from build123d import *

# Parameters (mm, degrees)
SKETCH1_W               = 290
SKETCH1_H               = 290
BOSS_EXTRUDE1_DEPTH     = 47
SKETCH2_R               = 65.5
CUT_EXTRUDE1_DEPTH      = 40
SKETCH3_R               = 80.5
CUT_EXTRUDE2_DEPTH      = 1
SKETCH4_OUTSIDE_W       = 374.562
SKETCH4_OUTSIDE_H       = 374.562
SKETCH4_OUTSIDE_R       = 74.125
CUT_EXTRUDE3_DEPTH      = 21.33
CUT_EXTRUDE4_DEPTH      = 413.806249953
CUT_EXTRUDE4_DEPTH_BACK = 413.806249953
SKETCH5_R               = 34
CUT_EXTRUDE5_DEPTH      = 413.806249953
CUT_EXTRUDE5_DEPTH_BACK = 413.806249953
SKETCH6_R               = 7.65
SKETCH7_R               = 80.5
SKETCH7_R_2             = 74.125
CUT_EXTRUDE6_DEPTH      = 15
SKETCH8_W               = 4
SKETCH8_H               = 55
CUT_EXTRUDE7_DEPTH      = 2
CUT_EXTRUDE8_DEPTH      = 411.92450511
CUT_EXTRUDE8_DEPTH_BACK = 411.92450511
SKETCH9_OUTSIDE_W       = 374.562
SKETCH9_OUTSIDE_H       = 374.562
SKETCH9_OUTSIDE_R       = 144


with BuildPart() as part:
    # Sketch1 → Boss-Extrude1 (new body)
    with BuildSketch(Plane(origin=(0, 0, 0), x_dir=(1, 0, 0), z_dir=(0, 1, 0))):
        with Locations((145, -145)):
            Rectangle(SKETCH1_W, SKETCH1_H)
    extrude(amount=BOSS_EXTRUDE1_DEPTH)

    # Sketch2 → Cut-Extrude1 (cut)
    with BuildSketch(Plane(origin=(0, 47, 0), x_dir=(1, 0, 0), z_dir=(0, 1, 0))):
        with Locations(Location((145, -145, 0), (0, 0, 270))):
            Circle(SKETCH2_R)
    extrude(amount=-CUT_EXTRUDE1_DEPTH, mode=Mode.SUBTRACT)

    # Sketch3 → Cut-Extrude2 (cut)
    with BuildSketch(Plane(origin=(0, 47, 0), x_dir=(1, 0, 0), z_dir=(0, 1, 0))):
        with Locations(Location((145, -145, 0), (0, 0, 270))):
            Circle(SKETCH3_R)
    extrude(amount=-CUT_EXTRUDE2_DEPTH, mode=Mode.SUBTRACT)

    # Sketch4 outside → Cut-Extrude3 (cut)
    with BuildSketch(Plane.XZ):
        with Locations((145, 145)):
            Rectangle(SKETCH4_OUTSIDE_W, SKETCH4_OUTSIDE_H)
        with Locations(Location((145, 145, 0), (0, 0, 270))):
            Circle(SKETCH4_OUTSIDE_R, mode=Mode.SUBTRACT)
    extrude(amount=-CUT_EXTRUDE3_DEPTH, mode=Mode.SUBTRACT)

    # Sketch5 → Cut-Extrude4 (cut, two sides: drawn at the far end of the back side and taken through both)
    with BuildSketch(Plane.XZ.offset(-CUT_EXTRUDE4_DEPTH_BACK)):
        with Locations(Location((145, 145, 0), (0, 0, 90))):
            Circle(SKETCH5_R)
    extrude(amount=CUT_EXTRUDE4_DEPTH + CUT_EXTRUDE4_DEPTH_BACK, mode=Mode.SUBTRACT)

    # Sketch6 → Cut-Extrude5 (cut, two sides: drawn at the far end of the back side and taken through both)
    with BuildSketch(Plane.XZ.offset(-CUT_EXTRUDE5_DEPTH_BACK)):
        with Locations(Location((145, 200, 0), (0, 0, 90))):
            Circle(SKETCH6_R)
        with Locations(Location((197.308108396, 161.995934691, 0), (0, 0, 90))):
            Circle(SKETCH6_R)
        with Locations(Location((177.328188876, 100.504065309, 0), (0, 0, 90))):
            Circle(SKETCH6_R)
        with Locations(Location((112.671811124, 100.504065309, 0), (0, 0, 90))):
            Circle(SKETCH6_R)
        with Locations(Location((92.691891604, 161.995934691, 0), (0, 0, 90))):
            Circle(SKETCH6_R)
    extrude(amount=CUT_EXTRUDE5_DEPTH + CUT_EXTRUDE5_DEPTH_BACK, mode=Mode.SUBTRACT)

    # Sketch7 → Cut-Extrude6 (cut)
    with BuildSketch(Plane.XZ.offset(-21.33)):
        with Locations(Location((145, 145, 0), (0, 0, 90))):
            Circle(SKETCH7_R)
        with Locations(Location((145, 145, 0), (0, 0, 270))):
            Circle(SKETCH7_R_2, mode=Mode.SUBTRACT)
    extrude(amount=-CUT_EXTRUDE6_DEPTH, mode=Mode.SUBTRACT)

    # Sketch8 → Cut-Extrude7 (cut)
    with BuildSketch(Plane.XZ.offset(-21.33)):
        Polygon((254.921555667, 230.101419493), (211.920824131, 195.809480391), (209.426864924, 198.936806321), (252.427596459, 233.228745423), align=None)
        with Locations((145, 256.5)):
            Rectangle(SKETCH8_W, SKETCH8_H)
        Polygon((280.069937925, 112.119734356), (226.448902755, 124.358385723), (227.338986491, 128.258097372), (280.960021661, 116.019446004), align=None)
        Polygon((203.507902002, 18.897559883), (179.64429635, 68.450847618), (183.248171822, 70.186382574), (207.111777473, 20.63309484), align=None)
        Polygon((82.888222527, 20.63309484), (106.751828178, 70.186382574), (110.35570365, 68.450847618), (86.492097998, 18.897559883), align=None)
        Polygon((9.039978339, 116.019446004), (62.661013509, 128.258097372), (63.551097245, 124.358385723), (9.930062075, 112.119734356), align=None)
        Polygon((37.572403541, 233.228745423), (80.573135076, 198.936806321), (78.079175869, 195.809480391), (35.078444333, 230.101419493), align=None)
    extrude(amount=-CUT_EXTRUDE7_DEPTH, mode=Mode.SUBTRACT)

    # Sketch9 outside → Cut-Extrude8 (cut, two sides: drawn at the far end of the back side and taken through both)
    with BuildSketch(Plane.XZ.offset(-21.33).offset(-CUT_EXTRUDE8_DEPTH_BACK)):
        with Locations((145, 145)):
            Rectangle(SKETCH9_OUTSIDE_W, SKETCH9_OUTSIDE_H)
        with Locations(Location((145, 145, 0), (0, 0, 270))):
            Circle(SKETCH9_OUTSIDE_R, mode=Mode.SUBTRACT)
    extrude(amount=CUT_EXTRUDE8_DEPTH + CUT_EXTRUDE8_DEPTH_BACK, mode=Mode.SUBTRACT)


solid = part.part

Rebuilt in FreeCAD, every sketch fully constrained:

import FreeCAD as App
import Part
import Sketcher
from FreeCAD import Vector


def add_polygon(sketch, points):
    """Adds a closed chain of lines whose ends are joined by coincident constraints."""
    first, n = sketch.GeometryCount, len(points)
    for a, b in zip(points, points[1:] + points[:1]):
        sketch.addGeometry(Part.LineSegment(App.Vector(*a, 0), App.Vector(*b, 0)), False)
    for i in range(n):
        sketch.addConstraint(Sketcher.Constraint("Coincident", first + i, 2, first + (i + 1) % n, 1))

doc = App.newDocument("Part")
body = doc.addObject("PartDesign::Body", "Body")

# Sketch on XZ plane
sketch1 = body.newObject("Sketcher::SketchObject", "Sketch")
sketch1.AttachmentSupport = (doc.getObject("XZ_Plane"), [""])
sketch1.MapMode = "FlatFace"
add_polygon(sketch1, [(0, 0), (0, 290), (290, 290), (290, 0)])  # lines 0-3
sketch1.addConstraint(Sketcher.Constraint("Vertical", 0))
sketch1.addConstraint(Sketcher.Constraint("Horizontal", 1))
sketch1.addConstraint(Sketcher.Constraint("Vertical", 2))
sketch1.addConstraint(Sketcher.Constraint("Horizontal", 3))
sketch1.addConstraint(Sketcher.Constraint("Coincident", 3, 2, -1, 1))
sketch1.addConstraint(Sketcher.Constraint("Equal", 3, 0))
sketch1.addConstraint(Sketcher.Constraint("DistanceX", 1, 1, 1, 2, 290.0))
pad1 = body.newObject("PartDesign::Pad", "Pad")
pad1.Profile = sketch1
pad1.Length = 47
pad1.Reversed = True

# Sketch on XZ plane
sketch2 = body.newObject("Sketcher::SketchObject", "Sketch001")
sketch2.AttachmentSupport = (doc.getObject("XZ_Plane"), [""])
sketch2.MapMode = "FlatFace"
sketch2.AttachmentOffset = App.Placement(Vector(0, 0, -47), App.Rotation())
sketch2.addGeometry(Part.Circle(Vector(145, 145, 0), Vector(0, 0, 1), 65.5), False)
sketch2.addConstraint(Sketcher.Constraint("Diameter", 0, 131.0))
sketch2.addConstraint(Sketcher.Constraint("DistanceX", -1, 1, 0, 3, 145.0))
sketch2.addConstraint(Sketcher.Constraint("DistanceY", -1, 1, 0, 3, 145.0))
pocket1 = body.newObject("PartDesign::Pocket", "Pocket")
pocket1.Profile = sketch2
pocket1.Length = 40
pocket1.Reversed = True

# Sketch on XZ plane
sketch3 = body.newObject("Sketcher::SketchObject", "Sketch002")
sketch3.AttachmentSupport = (doc.getObject("XZ_Plane"), [""])
sketch3.MapMode = "FlatFace"
sketch3.AttachmentOffset = App.Placement(Vector(0, 0, -47), App.Rotation())
sketch3.addGeometry(Part.Circle(Vector(145, 145, 0), Vector(0, 0, 1), 80.5), False)
sketch3.addConstraint(Sketcher.Constraint("Diameter", 0, 161.0))
sketch3.addConstraint(Sketcher.Constraint("DistanceX", -1, 1, 0, 3, 145.0))
sketch3.addConstraint(Sketcher.Constraint("DistanceY", -1, 1, 0, 3, 145.0))
pocket2 = body.newObject("PartDesign::Pocket", "Pocket001")
pocket2.Profile = sketch3
pocket2.Length = 1
pocket2.Reversed = True

# Sketch on XZ plane
sketch4 = body.newObject("Sketcher::SketchObject", "Sketch003")
sketch4.AttachmentSupport = (doc.getObject("XZ_Plane"), [""])
sketch4.MapMode = "FlatFace"
add_polygon(sketch4, [(-42.281, 332.281), (-42.281, -42.281), (332.281, -42.281), (332.281, 332.281)])  # lines 0-3
sketch4.addGeometry(Part.Circle(Vector(145, 145, 0), Vector(0, 0, 1), 74.125), False)  # 4
sketch4.addConstraint(Sketcher.Constraint("Vertical", 0))
sketch4.addConstraint(Sketcher.Constraint("Horizontal", 1))
sketch4.addConstraint(Sketcher.Constraint("Vertical", 2))
sketch4.addConstraint(Sketcher.Constraint("Horizontal", 3))
sketch4.addConstraint(Sketcher.Constraint("Equal", 3, 0))
sketch4.addConstraint(Sketcher.Constraint("Diameter", 4, 148.25))
sketch4.addConstraint(Sketcher.Constraint("DistanceX", -1, 1, 4, 3, 145.0))
sketch4.addConstraint(Sketcher.Constraint("DistanceY", -1, 1, 4, 3, 145.0))
sketch4.addConstraint(Sketcher.Constraint("DistanceX", 1, 1, 1, 2, 374.562))
sketch4.addConstraint(Sketcher.Constraint("DistanceX", 0, 2, -1, 1, 42.281))
sketch4.addConstraint(Sketcher.Constraint("DistanceY", 0, 2, -1, 1, 42.281))
pocket3 = body.newObject("PartDesign::Pocket", "Pocket002")
pocket3.Profile = sketch4
pocket3.Length = 21.33

# Sketch on XZ plane
sketch5 = body.newObject("Sketcher::SketchObject", "Sketch004")
sketch5.AttachmentSupport = (doc.getObject("XZ_Plane"), [""])
sketch5.MapMode = "FlatFace"
sketch5.addGeometry(Part.Circle(Vector(145, 145, 0), Vector(0, 0, 1), 34), False)
sketch5.addConstraint(Sketcher.Constraint("Diameter", 0, 68.0))
sketch5.addConstraint(Sketcher.Constraint("DistanceX", -1, 1, 0, 3, 145.0))
sketch5.addConstraint(Sketcher.Constraint("DistanceY", -1, 1, 0, 3, 145.0))
pocket4 = body.newObject("PartDesign::Pocket", "Pocket003")
pocket4.Profile = sketch5
pocket4.Type = "ThroughAll"
pocket4.Midplane = True

# Sketch on XZ plane
sketch6 = body.newObject("Sketcher::SketchObject", "Sketch005")
sketch6.AttachmentSupport = (doc.getObject("XZ_Plane"), [""])
sketch6.MapMode = "FlatFace"
sketch6.addGeometry(Part.Circle(Vector(145, 200, 0), Vector(0, 0, 1), 7.65), False)
sketch6.addGeometry(Part.Circle(Vector(197.308108, 161.995935, 0), Vector(0, 0, 1), 7.65), False)
sketch6.addGeometry(Part.Circle(Vector(177.328189, 100.504065, 0), Vector(0, 0, 1), 7.65), False)
sketch6.addGeometry(Part.Circle(Vector(112.671811, 100.504065, 0), Vector(0, 0, 1), 7.65), False)
sketch6.addGeometry(Part.Circle(Vector(92.691892, 161.995935, 0), Vector(0, 0, 1), 7.65), False)
sketch6.addConstraint(Sketcher.Constraint("Equal", 0, 1))
sketch6.addConstraint(Sketcher.Constraint("Equal", 1, 2))
sketch6.addConstraint(Sketcher.Constraint("Equal", 2, 3))
sketch6.addConstraint(Sketcher.Constraint("Equal", 3, 4))
sketch6.addConstraint(Sketcher.Constraint("Horizontal", 2, 3, 3, 3))
sketch6.addConstraint(Sketcher.Constraint("Horizontal", 1, 3, 4, 3))
sketch6.addConstraint(Sketcher.Constraint("Diameter", 0, 15.3))
sketch6.addConstraint(Sketcher.Constraint("DistanceX", -1, 1, 0, 3, 145.0))
sketch6.addConstraint(Sketcher.Constraint("DistanceY", -1, 1, 0, 3, 200.0))
sketch6.addConstraint(Sketcher.Constraint("DistanceX", -1, 1, 1, 3, 197.308108))
sketch6.addConstraint(Sketcher.Constraint("DistanceX", -1, 1, 2, 3, 177.328189))
sketch6.addConstraint(Sketcher.Constraint("DistanceX", -1, 1, 3, 3, 112.671811))
sketch6.addConstraint(Sketcher.Constraint("DistanceX", -1, 1, 4, 3, 92.691892))
sketch6.addConstraint(Sketcher.Constraint("DistanceY", 2, 3, 1, 3, 61.491869))
sketch6.addConstraint(Sketcher.Constraint("DistanceY", -1, 1, 1, 3, 161.995935))
pocket5 = body.newObject("PartDesign::Pocket", "Pocket004")
pocket5.Profile = sketch6
pocket5.Type = "ThroughAll"
pocket5.Midplane = True

# Sketch on XZ plane
sketch7 = body.newObject("Sketcher::SketchObject", "Sketch006")
sketch7.AttachmentSupport = (doc.getObject("XZ_Plane"), [""])
sketch7.MapMode = "FlatFace"
sketch7.AttachmentOffset = App.Placement(Vector(0, 0, -21.33), App.Rotation())
sketch7.addGeometry(Part.Circle(Vector(145, 145, 0), Vector(0, 0, 1), 80.5), False)
sketch7.addGeometry(Part.Circle(Vector(145, 145, 0), Vector(0, 0, 1), 74.125), False)
sketch7.addConstraint(Sketcher.Constraint("Coincident", 1, 3, 0, 3))
sketch7.addConstraint(Sketcher.Constraint("Diameter", 0, 161.0))
sketch7.addConstraint(Sketcher.Constraint("Diameter", 1, 148.25))
sketch7.addConstraint(Sketcher.Constraint("DistanceX", -1, 1, 0, 3, 145.0))
sketch7.addConstraint(Sketcher.Constraint("DistanceY", -1, 1, 0, 3, 145.0))
pocket6 = body.newObject("PartDesign::Pocket", "Pocket005")
pocket6.Profile = sketch7
pocket6.Length = 15

# Sketch on XZ plane
sketch8 = body.newObject("Sketcher::SketchObject", "Sketch007")
sketch8.AttachmentSupport = (doc.getObject("XZ_Plane"), [""])
sketch8.MapMode = "FlatFace"
sketch8.AttachmentOffset = App.Placement(Vector(0, 0, -21.33), App.Rotation())
add_polygon(sketch8, [(211.920824, 195.80948), (254.921556, 230.101419), (252.427596, 233.228745), (209.426865, 198.936806)])  # lines 0-3
add_polygon(sketch8, [(143, 284), (143, 229), (147, 229), (147, 284)])  # lines 4-7
add_polygon(sketch8, [(226.448903, 124.358386), (280.069938, 112.119734), (280.960022, 116.019446), (227.338986, 128.258097)])  # lines 8-11
add_polygon(sketch8, [(179.644296, 68.450848), (203.507902, 18.89756), (207.111777, 20.633095), (183.248172, 70.186383)])  # lines 12-15
add_polygon(sketch8, [(106.751828, 70.186383), (82.888223, 20.633095), (86.492098, 18.89756), (110.355704, 68.450848)])  # lines 16-19
add_polygon(sketch8, [(62.661014, 128.258097), (9.039978, 116.019446), (9.930062, 112.119734), (63.551097, 124.358386)])  # lines 20-23
add_polygon(sketch8, [(80.573135, 198.936806), (37.572404, 233.228745), (35.078444, 230.101419), (78.079176, 195.80948)])  # lines 24-27
sketch8.addConstraint(Sketcher.Constraint("Vertical", 4))
sketch8.addConstraint(Sketcher.Constraint("Horizontal", 5))
sketch8.addConstraint(Sketcher.Constraint("Vertical", 6))
sketch8.addConstraint(Sketcher.Constraint("Horizontal", 7))
sketch8.addConstraint(Sketcher.Constraint("Perpendicular", 0, 1))
sketch8.addConstraint(Sketcher.Constraint("Perpendicular", 1, 2))
sketch8.addConstraint(Sketcher.Constraint("Perpendicular", 2, 3))
sketch8.addConstraint(Sketcher.Constraint("Perpendicular", 8, 9))
sketch8.addConstraint(Sketcher.Constraint("Perpendicular", 9, 10))
sketch8.addConstraint(Sketcher.Constraint("Perpendicular", 10, 11))
sketch8.addConstraint(Sketcher.Constraint("Perpendicular", 12, 13))
sketch8.addConstraint(Sketcher.Constraint("Perpendicular", 13, 14))
sketch8.addConstraint(Sketcher.Constraint("Perpendicular", 14, 15))
sketch8.addConstraint(Sketcher.Constraint("Perpendicular", 16, 17))
sketch8.addConstraint(Sketcher.Constraint("Perpendicular", 17, 18))
sketch8.addConstraint(Sketcher.Constraint("Perpendicular", 18, 19))
sketch8.addConstraint(Sketcher.Constraint("Perpendicular", 20, 21))
sketch8.addConstraint(Sketcher.Constraint("Perpendicular", 21, 22))
sketch8.addConstraint(Sketcher.Constraint("Perpendicular", 22, 23))
sketch8.addConstraint(Sketcher.Constraint("Perpendicular", 24, 25))
sketch8.addConstraint(Sketcher.Constraint("Perpendicular", 25, 26))
sketch8.addConstraint(Sketcher.Constraint("Perpendicular", 26, 27))
sketch8.addConstraint(Sketcher.Constraint("Horizontal", 13, 2, 16, 2))
sketch8.addConstraint(Sketcher.Constraint("Horizontal", 12, 2, 17, 2))
sketch8.addConstraint(Sketcher.Constraint("Horizontal", 15, 2, 18, 2))
sketch8.addConstraint(Sketcher.Constraint("Horizontal", 9, 2, 20, 2))
sketch8.addConstraint(Sketcher.Constraint("Horizontal", 8, 2, 21, 2))
sketch8.addConstraint(Sketcher.Constraint("Horizontal", 11, 2, 22, 2))
sketch8.addConstraint(Sketcher.Constraint("Horizontal", 1, 2, 24, 2))
sketch8.addConstraint(Sketcher.Constraint("Horizontal", 0, 2, 25, 2))
sketch8.addConstraint(Sketcher.Constraint("Horizontal", 3, 2, 26, 2))
sketch8.addConstraint(Sketcher.Constraint("Equal", 2, 8))
sketch8.addConstraint(Sketcher.Constraint("Equal", 3, 9))
sketch8.addConstraint(Sketcher.Constraint("Equal", 10, 12))
sketch8.addConstraint(Sketcher.Constraint("Equal", 11, 13))
sketch8.addConstraint(Sketcher.Constraint("Equal", 14, 16))
sketch8.addConstraint(Sketcher.Constraint("Equal", 18, 20))
sketch8.addConstraint(Sketcher.Constraint("Equal", 22, 24))
sketch8.addConstraint(Sketcher.Constraint("DistanceX", 5, 1, 5, 2, 4.0))
sketch8.addConstraint(Sketcher.Constraint("DistanceY", 4, 2, 4, 1, 55.0))
sketch8.addConstraint(Sketcher.Constraint("Distance", 0, 55.0))
sketch8.addConstraint(Sketcher.Constraint("Distance", 1, 4.0))
sketch8.addConstraint(Sketcher.Constraint("DistanceX", -1, 1, 4, 2, 143.0))
sketch8.addConstraint(Sketcher.Constraint("DistanceY", -1, 1, 4, 2, 229.0))
sketch8.addConstraint(Sketcher.Constraint("DistanceX", 12, 2, 11, 2, 22.941001))
sketch8.addConstraint(Sketcher.Constraint("DistanceY", 9, 2, 1, 2, 117.209299))
sketch8.addConstraint(Sketcher.Constraint("DistanceX", 17, 2, 15, 2, 93.152198))
sketch8.addConstraint(Sketcher.Constraint("DistanceY", 18, 2, 20, 2, 47.568598))
sketch8.addConstraint(Sketcher.Constraint("DistanceY", -1, 1, 0, 2, 230.101419))
sketch8.addConstraint(Sketcher.Constraint("DistanceY", -1, 1, 3, 2, 195.80948))
sketch8.addConstraint(Sketcher.Constraint("DistanceX", -1, 1, 9, 2, 280.960022))
sketch8.addConstraint(Sketcher.Constraint("DistanceY", -1, 1, 12, 2, 18.89756))
sketch8.addConstraint(Sketcher.Constraint("DistanceX", -1, 1, 14, 2, 183.248172))
sketch8.addConstraint(Sketcher.Constraint("DistanceX", -1, 1, 20, 2, 9.039978))
sketch8.addConstraint(Sketcher.Constraint("DistanceX", 1, 2, 8, 2, 27.642341))
sketch8.addConstraint(Sketcher.Constraint("DistanceX", 24, 2, 23, 2, 25.08861))
pocket7 = body.newObject("PartDesign::Pocket", "Pocket006")
pocket7.Profile = sketch8
pocket7.Length = 2

# Sketch on XZ plane
sketch9 = body.newObject("Sketcher::SketchObject", "Sketch008")
sketch9.AttachmentSupport = (doc.getObject("XZ_Plane"), [""])
sketch9.MapMode = "FlatFace"
sketch9.AttachmentOffset = App.Placement(Vector(0, 0, -21.33), App.Rotation())
add_polygon(sketch9, [(-42.281, 332.281), (-42.281, -42.281), (332.281, -42.281), (332.281, 332.281)])  # lines 0-3
sketch9.addGeometry(Part.Circle(Vector(145, 145, 0), Vector(0, 0, 1), 144), False)  # 4
sketch9.addConstraint(Sketcher.Constraint("Vertical", 0))
sketch9.addConstraint(Sketcher.Constraint("Horizontal", 1))
sketch9.addConstraint(Sketcher.Constraint("Vertical", 2))
sketch9.addConstraint(Sketcher.Constraint("Horizontal", 3))
sketch9.addConstraint(Sketcher.Constraint("Equal", 3, 0))
sketch9.addConstraint(Sketcher.Constraint("Diameter", 4, 288.0))
sketch9.addConstraint(Sketcher.Constraint("DistanceX", -1, 1, 4, 3, 145.0))
sketch9.addConstraint(Sketcher.Constraint("DistanceY", -1, 1, 4, 3, 145.0))
sketch9.addConstraint(Sketcher.Constraint("DistanceX", 1, 1, 1, 2, 374.562))
sketch9.addConstraint(Sketcher.Constraint("DistanceX", 0, 2, -1, 1, 42.281))
sketch9.addConstraint(Sketcher.Constraint("DistanceY", 0, 2, -1, 1, 42.281))
pocket8 = body.newObject("PartDesign::Pocket", "Pocket007")
pocket8.Profile = sketch9
pocket8.Type = "ThroughAll"
pocket8.Midplane = True

doc.recompute()
